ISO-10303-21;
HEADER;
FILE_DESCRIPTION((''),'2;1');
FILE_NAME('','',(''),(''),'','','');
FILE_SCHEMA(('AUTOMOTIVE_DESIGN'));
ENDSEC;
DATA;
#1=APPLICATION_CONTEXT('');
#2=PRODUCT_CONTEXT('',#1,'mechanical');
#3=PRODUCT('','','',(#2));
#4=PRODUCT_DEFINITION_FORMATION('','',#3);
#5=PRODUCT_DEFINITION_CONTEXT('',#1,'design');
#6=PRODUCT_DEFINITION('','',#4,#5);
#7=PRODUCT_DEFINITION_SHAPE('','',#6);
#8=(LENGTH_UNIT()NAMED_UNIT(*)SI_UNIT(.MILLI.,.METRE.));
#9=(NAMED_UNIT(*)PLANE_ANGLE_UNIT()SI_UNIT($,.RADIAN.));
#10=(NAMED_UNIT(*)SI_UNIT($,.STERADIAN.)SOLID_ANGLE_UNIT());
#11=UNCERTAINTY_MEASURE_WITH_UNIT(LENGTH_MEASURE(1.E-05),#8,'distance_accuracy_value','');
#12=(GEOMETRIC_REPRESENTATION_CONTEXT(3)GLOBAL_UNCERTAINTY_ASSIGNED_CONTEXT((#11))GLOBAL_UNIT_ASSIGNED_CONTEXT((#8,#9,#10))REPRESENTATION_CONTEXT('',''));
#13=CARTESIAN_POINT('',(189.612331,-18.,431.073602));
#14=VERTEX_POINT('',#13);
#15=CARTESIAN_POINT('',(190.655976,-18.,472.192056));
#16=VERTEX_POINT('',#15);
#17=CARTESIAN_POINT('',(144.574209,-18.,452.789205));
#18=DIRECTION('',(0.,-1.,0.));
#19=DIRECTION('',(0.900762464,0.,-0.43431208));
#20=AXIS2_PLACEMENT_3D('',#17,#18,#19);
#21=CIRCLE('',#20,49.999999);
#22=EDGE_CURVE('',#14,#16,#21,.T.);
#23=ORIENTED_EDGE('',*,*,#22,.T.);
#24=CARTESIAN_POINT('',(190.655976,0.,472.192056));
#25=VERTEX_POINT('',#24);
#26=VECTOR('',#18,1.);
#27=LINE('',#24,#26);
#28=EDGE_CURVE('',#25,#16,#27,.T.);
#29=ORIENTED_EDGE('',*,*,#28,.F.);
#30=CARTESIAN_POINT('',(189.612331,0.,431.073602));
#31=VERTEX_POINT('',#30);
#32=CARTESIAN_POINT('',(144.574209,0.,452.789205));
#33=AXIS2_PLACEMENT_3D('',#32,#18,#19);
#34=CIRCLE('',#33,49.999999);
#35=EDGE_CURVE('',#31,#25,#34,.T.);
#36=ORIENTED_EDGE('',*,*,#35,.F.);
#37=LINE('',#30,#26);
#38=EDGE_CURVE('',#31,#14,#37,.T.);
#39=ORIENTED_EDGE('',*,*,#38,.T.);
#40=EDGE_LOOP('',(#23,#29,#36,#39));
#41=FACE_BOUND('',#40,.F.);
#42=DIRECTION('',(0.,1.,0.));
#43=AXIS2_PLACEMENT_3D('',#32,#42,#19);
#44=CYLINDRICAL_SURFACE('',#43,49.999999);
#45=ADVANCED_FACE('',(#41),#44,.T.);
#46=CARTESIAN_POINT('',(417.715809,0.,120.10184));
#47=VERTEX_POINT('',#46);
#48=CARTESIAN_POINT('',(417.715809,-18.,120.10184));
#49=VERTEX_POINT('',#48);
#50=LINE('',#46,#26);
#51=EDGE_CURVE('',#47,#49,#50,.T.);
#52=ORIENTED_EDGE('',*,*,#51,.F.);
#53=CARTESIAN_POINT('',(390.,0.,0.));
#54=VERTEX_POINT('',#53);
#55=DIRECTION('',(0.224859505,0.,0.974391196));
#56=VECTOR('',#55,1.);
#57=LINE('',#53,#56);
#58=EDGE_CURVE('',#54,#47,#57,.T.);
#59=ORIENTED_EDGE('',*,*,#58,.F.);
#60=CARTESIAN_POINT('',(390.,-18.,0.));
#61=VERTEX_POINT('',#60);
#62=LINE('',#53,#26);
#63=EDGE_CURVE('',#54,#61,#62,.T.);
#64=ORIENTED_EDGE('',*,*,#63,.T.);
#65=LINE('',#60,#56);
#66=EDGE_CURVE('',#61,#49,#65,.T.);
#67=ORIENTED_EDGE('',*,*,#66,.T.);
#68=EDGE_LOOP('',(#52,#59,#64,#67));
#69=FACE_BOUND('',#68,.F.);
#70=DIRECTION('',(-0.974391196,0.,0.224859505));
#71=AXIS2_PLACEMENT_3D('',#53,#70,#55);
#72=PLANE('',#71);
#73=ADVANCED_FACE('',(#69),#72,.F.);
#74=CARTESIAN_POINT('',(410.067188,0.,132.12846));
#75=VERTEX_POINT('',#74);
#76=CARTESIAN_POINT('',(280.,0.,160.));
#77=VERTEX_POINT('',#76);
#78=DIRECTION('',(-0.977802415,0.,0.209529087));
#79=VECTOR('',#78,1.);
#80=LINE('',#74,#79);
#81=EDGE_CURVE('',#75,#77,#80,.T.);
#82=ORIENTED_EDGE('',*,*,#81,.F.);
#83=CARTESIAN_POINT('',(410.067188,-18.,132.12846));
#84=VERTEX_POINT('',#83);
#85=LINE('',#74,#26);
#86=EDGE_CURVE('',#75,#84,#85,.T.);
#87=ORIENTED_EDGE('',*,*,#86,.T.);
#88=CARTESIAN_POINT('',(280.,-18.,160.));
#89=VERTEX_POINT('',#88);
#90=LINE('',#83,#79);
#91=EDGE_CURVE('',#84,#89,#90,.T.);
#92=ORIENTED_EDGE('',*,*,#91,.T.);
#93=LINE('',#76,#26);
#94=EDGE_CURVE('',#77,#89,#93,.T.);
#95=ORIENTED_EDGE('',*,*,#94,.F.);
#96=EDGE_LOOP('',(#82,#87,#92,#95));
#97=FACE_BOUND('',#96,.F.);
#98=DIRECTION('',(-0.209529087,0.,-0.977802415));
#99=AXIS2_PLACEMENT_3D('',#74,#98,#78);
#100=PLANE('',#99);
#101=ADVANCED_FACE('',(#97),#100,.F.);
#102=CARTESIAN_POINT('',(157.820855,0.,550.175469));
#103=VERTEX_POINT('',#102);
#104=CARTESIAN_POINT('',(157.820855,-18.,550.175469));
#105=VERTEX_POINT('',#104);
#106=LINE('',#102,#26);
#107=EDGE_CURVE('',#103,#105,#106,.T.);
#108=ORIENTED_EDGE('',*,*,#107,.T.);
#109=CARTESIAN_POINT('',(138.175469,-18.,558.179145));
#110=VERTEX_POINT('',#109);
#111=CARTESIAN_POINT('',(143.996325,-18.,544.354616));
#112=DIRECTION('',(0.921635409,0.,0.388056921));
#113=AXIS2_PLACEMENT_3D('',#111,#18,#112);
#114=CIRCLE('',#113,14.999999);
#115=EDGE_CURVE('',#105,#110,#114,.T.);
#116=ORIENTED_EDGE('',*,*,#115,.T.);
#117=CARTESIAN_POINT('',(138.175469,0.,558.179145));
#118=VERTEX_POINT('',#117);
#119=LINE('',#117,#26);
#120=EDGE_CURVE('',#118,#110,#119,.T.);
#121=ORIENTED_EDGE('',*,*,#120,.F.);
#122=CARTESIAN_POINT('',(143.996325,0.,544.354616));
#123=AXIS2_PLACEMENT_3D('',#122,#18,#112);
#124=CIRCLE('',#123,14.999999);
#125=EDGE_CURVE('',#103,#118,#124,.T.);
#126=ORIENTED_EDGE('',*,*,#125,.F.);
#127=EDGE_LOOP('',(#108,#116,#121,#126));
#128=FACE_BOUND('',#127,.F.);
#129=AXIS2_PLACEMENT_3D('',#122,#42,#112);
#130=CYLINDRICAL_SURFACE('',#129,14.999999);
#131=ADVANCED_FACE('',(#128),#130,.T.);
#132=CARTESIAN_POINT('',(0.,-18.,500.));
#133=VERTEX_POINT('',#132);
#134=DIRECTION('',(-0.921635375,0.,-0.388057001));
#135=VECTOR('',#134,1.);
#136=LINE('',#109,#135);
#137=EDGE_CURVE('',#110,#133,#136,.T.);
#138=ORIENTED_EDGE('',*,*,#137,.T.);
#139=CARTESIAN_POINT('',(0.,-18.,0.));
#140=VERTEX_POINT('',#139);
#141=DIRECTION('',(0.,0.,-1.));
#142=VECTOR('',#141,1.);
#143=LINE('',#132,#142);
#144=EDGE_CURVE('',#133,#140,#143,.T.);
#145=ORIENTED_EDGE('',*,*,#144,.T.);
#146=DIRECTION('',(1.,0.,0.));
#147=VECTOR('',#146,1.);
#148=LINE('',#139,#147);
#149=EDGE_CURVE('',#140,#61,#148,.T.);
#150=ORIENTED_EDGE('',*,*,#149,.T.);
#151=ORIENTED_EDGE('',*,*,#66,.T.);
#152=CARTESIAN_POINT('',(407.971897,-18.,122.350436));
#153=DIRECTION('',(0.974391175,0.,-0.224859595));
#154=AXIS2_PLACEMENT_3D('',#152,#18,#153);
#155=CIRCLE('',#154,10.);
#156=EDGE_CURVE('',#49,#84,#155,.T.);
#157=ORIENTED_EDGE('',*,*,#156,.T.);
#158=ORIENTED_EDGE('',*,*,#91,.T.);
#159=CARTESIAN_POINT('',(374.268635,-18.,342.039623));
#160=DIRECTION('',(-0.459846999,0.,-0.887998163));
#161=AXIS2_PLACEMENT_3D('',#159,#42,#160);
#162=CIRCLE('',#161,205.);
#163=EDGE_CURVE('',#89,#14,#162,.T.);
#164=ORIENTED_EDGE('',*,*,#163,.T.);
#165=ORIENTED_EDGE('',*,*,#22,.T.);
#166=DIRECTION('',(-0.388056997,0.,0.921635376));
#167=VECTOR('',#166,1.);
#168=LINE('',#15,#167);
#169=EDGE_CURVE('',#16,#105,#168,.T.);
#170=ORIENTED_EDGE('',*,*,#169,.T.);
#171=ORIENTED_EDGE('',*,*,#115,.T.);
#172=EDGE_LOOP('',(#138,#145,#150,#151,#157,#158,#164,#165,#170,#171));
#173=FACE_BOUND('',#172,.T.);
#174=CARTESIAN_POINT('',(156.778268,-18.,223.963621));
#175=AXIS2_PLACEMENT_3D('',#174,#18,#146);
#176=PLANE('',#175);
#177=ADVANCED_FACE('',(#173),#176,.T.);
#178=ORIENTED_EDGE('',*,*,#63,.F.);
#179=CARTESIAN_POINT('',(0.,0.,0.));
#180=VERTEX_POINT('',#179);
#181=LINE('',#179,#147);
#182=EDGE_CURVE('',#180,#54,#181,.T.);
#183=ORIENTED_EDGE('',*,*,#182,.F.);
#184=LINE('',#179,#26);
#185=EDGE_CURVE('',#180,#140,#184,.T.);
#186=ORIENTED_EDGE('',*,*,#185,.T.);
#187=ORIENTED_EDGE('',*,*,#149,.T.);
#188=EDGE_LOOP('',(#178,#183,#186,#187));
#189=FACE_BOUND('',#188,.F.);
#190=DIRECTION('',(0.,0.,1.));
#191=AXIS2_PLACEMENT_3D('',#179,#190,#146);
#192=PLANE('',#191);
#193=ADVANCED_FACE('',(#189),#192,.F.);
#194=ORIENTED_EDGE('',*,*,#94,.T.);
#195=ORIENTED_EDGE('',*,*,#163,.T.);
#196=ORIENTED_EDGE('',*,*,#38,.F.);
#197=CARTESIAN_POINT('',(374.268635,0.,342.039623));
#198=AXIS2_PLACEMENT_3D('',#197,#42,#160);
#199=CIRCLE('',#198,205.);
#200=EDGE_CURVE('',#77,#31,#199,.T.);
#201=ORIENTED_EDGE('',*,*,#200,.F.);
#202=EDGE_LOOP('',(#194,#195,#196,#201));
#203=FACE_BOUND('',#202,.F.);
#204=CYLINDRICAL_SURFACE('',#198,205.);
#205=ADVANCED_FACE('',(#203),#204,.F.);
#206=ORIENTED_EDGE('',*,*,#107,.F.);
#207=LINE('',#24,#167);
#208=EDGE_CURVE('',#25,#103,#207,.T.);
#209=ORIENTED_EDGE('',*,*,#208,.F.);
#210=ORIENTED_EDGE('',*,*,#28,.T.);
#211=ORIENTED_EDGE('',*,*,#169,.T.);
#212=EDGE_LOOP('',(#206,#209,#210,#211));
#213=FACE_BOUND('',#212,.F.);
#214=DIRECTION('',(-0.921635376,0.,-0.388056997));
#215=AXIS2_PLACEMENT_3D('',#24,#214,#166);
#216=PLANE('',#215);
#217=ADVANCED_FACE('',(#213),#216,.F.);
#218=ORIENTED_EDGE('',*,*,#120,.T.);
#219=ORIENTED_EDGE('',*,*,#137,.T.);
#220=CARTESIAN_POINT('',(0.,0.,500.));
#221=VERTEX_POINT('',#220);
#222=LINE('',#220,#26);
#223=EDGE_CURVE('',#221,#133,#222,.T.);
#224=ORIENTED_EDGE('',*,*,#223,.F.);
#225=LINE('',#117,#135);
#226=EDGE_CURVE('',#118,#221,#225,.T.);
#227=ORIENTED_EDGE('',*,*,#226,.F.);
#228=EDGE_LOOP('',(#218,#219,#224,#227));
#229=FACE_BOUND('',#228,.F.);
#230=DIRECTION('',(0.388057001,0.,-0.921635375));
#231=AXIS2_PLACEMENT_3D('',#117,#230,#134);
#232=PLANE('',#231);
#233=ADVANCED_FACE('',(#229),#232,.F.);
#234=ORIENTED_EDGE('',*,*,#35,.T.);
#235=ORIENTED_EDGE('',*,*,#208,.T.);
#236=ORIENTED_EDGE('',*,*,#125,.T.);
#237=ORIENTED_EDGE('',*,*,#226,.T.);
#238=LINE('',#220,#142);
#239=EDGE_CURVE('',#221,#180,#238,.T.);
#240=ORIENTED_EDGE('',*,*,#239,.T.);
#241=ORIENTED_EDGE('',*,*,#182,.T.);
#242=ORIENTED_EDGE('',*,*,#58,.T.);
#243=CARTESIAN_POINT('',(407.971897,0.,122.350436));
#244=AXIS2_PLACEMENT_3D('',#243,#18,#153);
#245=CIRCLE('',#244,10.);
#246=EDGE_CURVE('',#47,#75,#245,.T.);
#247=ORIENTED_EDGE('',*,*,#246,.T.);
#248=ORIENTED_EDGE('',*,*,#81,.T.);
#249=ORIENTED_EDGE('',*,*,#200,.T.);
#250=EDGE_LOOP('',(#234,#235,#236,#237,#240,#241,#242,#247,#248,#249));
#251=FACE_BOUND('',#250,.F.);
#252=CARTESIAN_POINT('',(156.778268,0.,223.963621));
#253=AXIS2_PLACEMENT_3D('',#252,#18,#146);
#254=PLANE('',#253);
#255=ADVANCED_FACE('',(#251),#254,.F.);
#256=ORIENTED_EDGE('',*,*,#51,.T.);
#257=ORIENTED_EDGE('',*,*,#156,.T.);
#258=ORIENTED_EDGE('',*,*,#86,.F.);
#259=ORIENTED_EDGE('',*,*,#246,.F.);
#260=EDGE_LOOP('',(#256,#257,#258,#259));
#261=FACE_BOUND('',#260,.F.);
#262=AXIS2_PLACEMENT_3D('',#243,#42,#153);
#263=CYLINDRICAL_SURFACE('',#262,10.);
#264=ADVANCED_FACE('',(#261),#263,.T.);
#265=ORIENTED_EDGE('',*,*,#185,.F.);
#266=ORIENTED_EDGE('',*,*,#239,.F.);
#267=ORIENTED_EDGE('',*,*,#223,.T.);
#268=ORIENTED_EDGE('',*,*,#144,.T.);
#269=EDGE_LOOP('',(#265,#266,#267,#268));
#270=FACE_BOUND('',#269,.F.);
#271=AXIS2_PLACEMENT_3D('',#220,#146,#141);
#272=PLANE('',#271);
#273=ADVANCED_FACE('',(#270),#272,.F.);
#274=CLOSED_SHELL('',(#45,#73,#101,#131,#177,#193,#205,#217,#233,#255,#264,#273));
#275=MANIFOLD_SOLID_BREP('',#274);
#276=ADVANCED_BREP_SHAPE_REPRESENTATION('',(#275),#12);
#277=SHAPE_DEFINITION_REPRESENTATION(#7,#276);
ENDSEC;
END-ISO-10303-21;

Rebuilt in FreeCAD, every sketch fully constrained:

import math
import FreeCAD as App
import Part
import Sketcher
from FreeCAD import Vector
Q = App.Units.Quantity

doc = App.newDocument("Part")
body = doc.addObject("PartDesign::Body", "Body")

# Sketch on XZ plane
sketch1 = doc.addObject("Sketcher::SketchObject", "Sketch")
body.addObject(sketch1)
sketch1.AttachmentSupport = (doc.XZ_Plane, [""])
sketch1.MapMode = "FlatFace"
sketch1.addGeometry(Part.LineSegment(Vector(0, 500, 0), Vector(0, 0, 0)), False)
sketch1.addGeometry(Part.LineSegment(Vector(0, 0, 0), Vector(390, 0, 0)), False)
sketch1.addGeometry(Part.LineSegment(Vector(390, 0, 0), Vector(417.715809, 120.10184, 0)), False)
sketch1.addGeometry(Part.ArcOfCircle(Part.Circle(Vector(407.971897, 122.350436, 0), Vector(0, 0, 1), 10), math.radians(-12.994622), math.radians(77.905244)), False)
sketch1.addGeometry(Part.LineSegment(Vector(410.067188, 132.12846, 0), Vector(280, 160, 0)), False)
sketch1.addGeometry(Part.ArcOfCircle(Part.Circle(Vector(374.268635, 342.039623, 0), Vector(0, 0, 1), 205), math.radians(154.258471), math.radians(242.622765)), False)
sketch1.addGeometry(Part.ArcOfCircle(Part.Circle(Vector(144.574209, 452.789205, 0), Vector(0, 0, 1), 49.999999), math.radians(-25.741529), math.radians(22.833656)), False)
sketch1.addGeometry(Part.LineSegment(Vector(190.655976, 472.192056, 0), Vector(157.820855, 550.175469, 0)), False)
sketch1.addGeometry(Part.ArcOfCircle(Part.Circle(Vector(143.996325, 544.354616, 0), Vector(0, 0, 1), 14.999999), math.radians(22.833649), math.radians(112.833658)), False)
sketch1.addGeometry(Part.LineSegment(Vector(138.175469, 558.179145, 0), Vector(0, 500, 0)), False)
sketch1.addConstraint(Sketcher.Constraint("Coincident", 0, 2, 1, 1))
sketch1.addConstraint(Sketcher.Constraint("Coincident", 1, 2, 2, 1))
sketch1.addConstraint(Sketcher.Constraint("Tangent", 2, 2, 3, 1))
sketch1.addConstraint(Sketcher.Constraint("Tangent", 3, 2, 4, 1))
sketch1.addConstraint(Sketcher.Constraint("Coincident", 4, 2, 5, 2))
sketch1.addConstraint(Sketcher.Constraint("Tangent", 5, 1, 6, 1))
sketch1.addConstraint(Sketcher.Constraint("Tangent", 6, 2, 7, 1))
sketch1.addConstraint(Sketcher.Constraint("Tangent", 7, 2, 8, 1))
sketch1.addConstraint(Sketcher.Constraint("Tangent", 8, 2, 9, 1))
sketch1.addConstraint(Sketcher.Constraint("Coincident", 9, 2, 0, 1))
sketch1.addConstraint(Sketcher.Constraint("Vertical", 0))
sketch1.addConstraint(Sketcher.Constraint("Horizontal", 1))
sketch1.addConstraint(Sketcher.Constraint("Coincident", 0, 2, -1, 1))
sketch1.addConstraint(Sketcher.Constraint("Perpendicular", 7, 9))
sketch1.addConstraint(Sketcher.Constraint("Radius", 3, Q("10 mm")))
sketch1.addConstraint(Sketcher.Constraint("Radius", 5, Q("205 mm")))
sketch1.addConstraint(Sketcher.Constraint("Radius", 6, Q("49.999999 mm")))
sketch1.addConstraint(Sketcher.Constraint("Radius", 8, Q("14.999999 mm")))
sketch1.addConstraint(Sketcher.Constraint("DistanceX", 1, 1, 1, 2, Q("390 mm")))
sketch1.addConstraint(Sketcher.Constraint("DistanceY", 0, 2, 0, 1, Q("500 mm")))
sketch1.addConstraint(Sketcher.Constraint("DistanceX", -1, 1, 4, 2, Q("280 mm")))
sketch1.addConstraint(Sketcher.Constraint("DistanceY", -1, 1, 4, 2, Q("160 mm")))
sketch1.addConstraint(Sketcher.Constraint("DistanceX", 6, 3, 2, 2, Q("273.1416 mm")))
sketch1.addConstraint(Sketcher.Constraint("Distance", 2, Q("123.258339 mm")))
sketch1.addConstraint(Sketcher.Constraint("Distance", 4, Q("133.019909 mm")))
sketch1.addConstraint(Sketcher.Constraint("Distance", 7, Q("84.614171 mm")))
sketch1.addConstraint(Sketcher.Constraint("DistanceY", -1, 1, 7, 2, Q("550.175469 mm")))
pad1 = doc.addObject("PartDesign::Pad", "Pad")
body.addObject(pad1)
pad1.Profile = sketch1
pad1.Length = 18

doc.recompute()
